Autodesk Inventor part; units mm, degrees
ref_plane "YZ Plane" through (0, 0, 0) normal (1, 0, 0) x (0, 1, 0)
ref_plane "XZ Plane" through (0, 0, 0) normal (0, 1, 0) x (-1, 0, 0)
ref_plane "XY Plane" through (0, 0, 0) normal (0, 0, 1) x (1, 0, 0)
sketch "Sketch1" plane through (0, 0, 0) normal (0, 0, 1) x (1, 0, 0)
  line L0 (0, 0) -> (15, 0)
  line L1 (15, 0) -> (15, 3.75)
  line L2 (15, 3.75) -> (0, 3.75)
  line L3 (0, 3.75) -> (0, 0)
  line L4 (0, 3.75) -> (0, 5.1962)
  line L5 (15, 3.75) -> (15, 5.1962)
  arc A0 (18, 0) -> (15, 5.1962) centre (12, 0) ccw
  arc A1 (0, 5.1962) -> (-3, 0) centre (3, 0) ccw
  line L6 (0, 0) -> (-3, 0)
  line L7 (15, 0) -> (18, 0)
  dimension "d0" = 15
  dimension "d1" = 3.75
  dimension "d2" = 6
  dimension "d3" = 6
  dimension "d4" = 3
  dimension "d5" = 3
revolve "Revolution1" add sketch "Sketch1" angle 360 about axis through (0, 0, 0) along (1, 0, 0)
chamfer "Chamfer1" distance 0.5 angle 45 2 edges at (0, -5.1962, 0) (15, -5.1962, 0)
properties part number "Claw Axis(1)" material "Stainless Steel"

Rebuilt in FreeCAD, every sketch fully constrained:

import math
import FreeCAD as App
import Part
import Sketcher
from FreeCAD import Vector


def edges_at(feature, points):
    """Names of the edges that pass closest to the given points."""
    edges = feature.Shape.Edges
    near = lambda p: min(range(len(edges)), key=lambda i: edges[i].distToShape(Part.Vertex(*p))[0])
    return sorted({f"Edge{near(p) + 1}" for p in points})

doc = App.newDocument("Part")
body = doc.addObject("PartDesign::Body", "Body")

# Sketch on XY plane
sketch1 = doc.addObject("Sketcher::SketchObject", "Sketch")
body.addObject(sketch1)
sketch1.AttachmentSupport = (doc.XY_Plane, [""])
sketch1.MapMode = "FlatFace"
sketch1.addGeometry([
    Part.LineSegment(Vector(15, 3.8, 0), Vector(0, 3.8, 0)),  # 0
    Part.LineSegment(Vector(0, 3.8, 0), Vector(0, 5.2, 0)),  # 1
    Part.ArcOfCircle(Part.Circle(Vector(3, 0, 0), Vector(0, 0, 1), 6), math.radians(120), math.radians(180)),  # 2
    Part.LineSegment(Vector(-3, 0, 0), Vector(18, 0, 0)),  # 3
    Part.ArcOfCircle(Part.Circle(Vector(12, 0, 0), Vector(0, 0, 1), 6), math.radians(0), math.radians(60)),  # 4
    Part.LineSegment(Vector(15, 5.2, 0), Vector(15, 3.8, 0)),  # 5
], False)
sketch1.addConstraint([
    Sketcher.Constraint("Coincident", 0, 2, 1, 1),
    Sketcher.Constraint("Coincident", 1, 2, 2, 1),
    Sketcher.Constraint("Coincident", 2, 2, 3, 1),
    Sketcher.Constraint("Coincident", 3, 2, 4, 1),
    Sketcher.Constraint("Coincident", 4, 2, 5, 1),
    Sketcher.Constraint("Coincident", 5, 2, 0, 1),
    Sketcher.Constraint("Horizontal", 0),
    Sketcher.Constraint("Vertical", 1),
    Sketcher.Constraint("Horizontal", 3),
    Sketcher.Constraint("Vertical", 5),
    Sketcher.Constraint("Equal", 2, 4),
    Sketcher.Constraint("PointOnObject", 2, 3, -1),
    Sketcher.Constraint("PointOnObject", 4, 3, -1),
    Sketcher.Constraint("PointOnObject", 0, 2, -2),
    Sketcher.Constraint("PointOnObject", 2, 2, -1),
    Sketcher.Constraint("Horizontal", 1, 2, 4, 2),
    Sketcher.Constraint("Radius", 2, 6.0),
    Sketcher.Constraint("DistanceX", 0, 2, 0, 1, 15.0),
    Sketcher.Constraint("DistanceX", -1, 1, 2, 3, 3.0),
    Sketcher.Constraint("DistanceY", -1, 1, 0, 2, 3.75),
])
revolution = doc.addObject("PartDesign::Revolution", "Revolution")
body.addObject(revolution)
revolution.Profile = sketch1
revolution.ReferenceAxis = (sketch1, ["H_Axis"])
revolution.Angle = 360
doc.recompute()

chamfer = doc.addObject("PartDesign::Chamfer", "Chamfer")
body.addObject(chamfer)
chamfer.Base = (revolution, edges_at(revolution, [(0, -5.196, 0), (15, -5.196, 0)]))
chamfer.Size = 0.5

doc.recompute()
